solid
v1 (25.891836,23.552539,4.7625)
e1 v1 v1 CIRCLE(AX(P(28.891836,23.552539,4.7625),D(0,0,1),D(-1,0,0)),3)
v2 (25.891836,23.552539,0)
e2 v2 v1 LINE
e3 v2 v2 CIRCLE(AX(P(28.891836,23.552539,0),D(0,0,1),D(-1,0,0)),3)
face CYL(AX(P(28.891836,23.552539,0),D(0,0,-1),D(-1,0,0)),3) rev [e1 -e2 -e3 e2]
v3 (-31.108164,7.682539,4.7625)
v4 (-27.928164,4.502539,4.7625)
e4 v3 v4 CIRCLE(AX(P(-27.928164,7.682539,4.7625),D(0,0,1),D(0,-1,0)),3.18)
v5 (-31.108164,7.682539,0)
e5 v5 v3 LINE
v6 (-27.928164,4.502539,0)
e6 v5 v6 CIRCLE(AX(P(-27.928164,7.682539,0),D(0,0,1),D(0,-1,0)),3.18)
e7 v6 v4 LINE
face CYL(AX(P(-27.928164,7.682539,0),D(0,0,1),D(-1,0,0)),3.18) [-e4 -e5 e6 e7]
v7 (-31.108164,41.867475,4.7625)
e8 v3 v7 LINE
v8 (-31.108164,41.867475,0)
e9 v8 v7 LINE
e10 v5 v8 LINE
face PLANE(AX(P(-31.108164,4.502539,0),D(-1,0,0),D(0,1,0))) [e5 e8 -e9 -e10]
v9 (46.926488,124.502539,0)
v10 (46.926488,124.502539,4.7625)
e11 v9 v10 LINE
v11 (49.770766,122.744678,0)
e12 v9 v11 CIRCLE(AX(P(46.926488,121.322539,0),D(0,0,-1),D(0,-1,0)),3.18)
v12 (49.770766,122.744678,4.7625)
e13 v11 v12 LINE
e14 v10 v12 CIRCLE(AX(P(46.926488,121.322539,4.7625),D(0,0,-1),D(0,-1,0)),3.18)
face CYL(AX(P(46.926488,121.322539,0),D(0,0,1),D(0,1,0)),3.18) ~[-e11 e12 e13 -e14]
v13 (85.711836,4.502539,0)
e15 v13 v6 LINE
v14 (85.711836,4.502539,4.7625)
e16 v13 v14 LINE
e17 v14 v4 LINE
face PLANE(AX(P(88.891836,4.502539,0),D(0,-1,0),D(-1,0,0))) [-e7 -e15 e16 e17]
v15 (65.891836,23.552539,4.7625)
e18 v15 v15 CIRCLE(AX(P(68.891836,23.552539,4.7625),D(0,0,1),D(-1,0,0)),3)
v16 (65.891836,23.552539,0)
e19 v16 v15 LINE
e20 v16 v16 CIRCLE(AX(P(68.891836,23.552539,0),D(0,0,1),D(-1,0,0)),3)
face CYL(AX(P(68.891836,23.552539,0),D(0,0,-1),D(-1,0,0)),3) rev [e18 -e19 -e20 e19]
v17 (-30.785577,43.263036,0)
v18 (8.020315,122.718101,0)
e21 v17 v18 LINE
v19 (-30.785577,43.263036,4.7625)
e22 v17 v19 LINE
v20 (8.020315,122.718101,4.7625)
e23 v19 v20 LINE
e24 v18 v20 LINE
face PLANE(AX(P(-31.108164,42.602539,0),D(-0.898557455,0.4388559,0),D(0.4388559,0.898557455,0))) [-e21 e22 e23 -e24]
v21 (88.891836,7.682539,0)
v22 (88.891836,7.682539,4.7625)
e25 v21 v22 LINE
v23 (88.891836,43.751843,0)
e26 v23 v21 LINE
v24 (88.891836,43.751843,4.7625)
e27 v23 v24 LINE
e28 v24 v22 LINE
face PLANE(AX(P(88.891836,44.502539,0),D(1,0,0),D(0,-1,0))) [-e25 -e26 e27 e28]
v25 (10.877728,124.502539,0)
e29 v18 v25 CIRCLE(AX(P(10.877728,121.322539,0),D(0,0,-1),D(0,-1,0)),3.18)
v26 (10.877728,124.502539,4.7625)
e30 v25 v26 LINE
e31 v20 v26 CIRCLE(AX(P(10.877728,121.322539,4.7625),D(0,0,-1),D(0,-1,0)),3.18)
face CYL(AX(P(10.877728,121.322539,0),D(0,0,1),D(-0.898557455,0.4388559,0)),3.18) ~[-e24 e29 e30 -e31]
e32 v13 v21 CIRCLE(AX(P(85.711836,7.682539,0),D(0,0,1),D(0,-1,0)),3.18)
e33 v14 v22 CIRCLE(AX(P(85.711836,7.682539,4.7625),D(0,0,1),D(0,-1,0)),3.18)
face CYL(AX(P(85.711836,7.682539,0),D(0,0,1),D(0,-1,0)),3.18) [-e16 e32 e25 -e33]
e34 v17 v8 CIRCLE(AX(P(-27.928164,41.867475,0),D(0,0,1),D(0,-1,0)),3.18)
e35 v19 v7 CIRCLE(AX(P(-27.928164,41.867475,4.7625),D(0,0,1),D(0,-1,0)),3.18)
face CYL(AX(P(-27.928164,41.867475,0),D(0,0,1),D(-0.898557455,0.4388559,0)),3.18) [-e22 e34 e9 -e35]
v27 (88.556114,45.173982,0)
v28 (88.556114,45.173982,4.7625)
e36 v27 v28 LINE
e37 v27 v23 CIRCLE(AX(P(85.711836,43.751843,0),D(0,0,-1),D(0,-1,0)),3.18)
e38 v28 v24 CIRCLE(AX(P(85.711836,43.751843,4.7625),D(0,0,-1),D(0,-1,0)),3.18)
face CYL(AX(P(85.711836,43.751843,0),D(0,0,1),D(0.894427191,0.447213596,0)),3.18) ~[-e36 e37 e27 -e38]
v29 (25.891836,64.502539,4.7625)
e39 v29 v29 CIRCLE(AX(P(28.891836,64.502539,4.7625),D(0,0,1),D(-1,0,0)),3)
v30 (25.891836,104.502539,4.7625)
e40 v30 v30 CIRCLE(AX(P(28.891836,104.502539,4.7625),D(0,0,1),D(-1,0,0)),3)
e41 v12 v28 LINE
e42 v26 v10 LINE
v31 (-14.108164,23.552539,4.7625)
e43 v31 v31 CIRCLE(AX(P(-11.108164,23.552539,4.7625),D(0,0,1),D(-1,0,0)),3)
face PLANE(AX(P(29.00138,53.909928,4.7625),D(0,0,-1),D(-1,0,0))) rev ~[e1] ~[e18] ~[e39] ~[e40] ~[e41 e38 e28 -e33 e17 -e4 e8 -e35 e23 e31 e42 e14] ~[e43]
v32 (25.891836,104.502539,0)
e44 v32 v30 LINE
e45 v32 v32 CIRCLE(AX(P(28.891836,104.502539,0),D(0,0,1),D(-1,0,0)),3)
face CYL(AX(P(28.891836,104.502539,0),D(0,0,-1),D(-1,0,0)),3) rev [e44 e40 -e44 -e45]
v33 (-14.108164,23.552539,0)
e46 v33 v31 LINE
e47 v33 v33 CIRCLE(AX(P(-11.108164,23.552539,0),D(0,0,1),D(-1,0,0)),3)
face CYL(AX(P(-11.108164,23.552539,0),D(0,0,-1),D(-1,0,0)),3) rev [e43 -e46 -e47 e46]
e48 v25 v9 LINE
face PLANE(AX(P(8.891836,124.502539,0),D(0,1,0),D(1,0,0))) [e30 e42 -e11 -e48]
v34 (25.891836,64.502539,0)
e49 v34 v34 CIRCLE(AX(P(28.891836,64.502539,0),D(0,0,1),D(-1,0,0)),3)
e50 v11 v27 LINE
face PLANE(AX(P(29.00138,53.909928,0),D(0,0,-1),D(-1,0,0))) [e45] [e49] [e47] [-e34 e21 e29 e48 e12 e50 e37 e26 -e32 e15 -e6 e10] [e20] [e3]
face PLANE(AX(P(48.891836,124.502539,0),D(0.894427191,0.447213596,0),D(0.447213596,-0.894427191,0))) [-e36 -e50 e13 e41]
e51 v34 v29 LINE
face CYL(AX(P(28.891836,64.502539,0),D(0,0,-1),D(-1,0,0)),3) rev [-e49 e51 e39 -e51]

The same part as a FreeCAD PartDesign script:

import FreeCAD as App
import Part
import Sketcher

V = App.Vector


def edges_at(feature, points):
    """Names of the edges that pass closest to the given points."""
    edges = feature.Shape.Edges
    near = lambda p: min(range(len(edges)), key=lambda i: edges[i].distToShape(Part.Vertex(*p))[0])
    return sorted({f"Edge{near(p) + 1}" for p in points})


def add_polygon(sketch, points):
    """Adds a closed chain of lines whose ends are joined by coincident constraints."""
    first, n = sketch.GeometryCount, len(points)
    for a, b in zip(points, points[1:] + points[:1]):
        sketch.addGeometry(Part.LineSegment(App.Vector(*a, 0), App.Vector(*b, 0)), False)
    for i in range(n):
        sketch.addConstraint(Sketcher.Constraint("Coincident", first + i, 2, first + (i + 1) % n, 1))

doc = App.newDocument("Part")
params = doc.addObject("Spreadsheet::Sheet", "Params")
for row, (alias, value) in enumerate([
    ("sketch1_diameter", "6 mm"),
    ("sketch1_width", "120 mm"),
    ("sketch1_width2", "40 mm"),
    ("sketch1_height", "38.1 mm"),
    ("pad1_length", "4.7625 mm"),
    ("fillet_radius", "3.18 mm"),
], start=1):
    params.set(f"A{row}", alias)
    params.set(f"B{row}", "=" + value)
    params.setAlias(f"B{row}", alias)

body = doc.addObject("PartDesign::Body", "Body")

sketch1 = doc.addObject("Sketcher::SketchObject", "Sketch")
body.addObject(sketch1)
sketch1.AttachmentSupport = (doc.XY_Plane, [""])
sketch1.MapMode = "FlatFace"
add_polygon(sketch1, [(8.9, 124.5), (-31.1, 42.6), (-31.1, 4.5), (88.9, 4.5), (88.9, 44.5), (48.9, 124.5)])
sketch1.addGeometry(Part.Circle(V(68.9, 23.6, 0), V(0, 0, 1), 3), False)
sketch1.addGeometry(Part.Circle(V(28.9, 23.6, 0), V(0, 0, 1), 3), False)
sketch1.addGeometry(Part.Circle(V(-11.1, 23.6, 0), V(0, 0, 1), 3), False)
sketch1.addGeometry(Part.Circle(V(28.9, 64.5, 0), V(0, 0, 1), 3), False)
sketch1.addGeometry(Part.Circle(V(28.9, 104.5, 0), V(0, 0, 1), 3), False)
sketch1.addConstraint([
    Sketcher.Constraint("Vertical", 1),
    Sketcher.Constraint("Horizontal", 2),
    Sketcher.Constraint("Vertical", 3),
    Sketcher.Constraint("Horizontal", 5),
    Sketcher.Constraint("Equal", 6, 7),
    Sketcher.Constraint("Equal", 7, 8),
    Sketcher.Constraint("Equal", 8, 9),
    Sketcher.Constraint("Equal", 9, 10),
    Sketcher.Constraint("Horizontal", 6, 3, 7, 3),
    Sketcher.Constraint("Horizontal", 7, 3, 8, 3),
    Sketcher.Constraint("Vertical", 7, 3, 9, 3),
    Sketcher.Constraint("Vertical", 9, 3, 10, 3),
    Sketcher.Constraint("Equal", 5, 3),
    Sketcher.Constraint("Diameter", 6, 6.0),
    Sketcher.Constraint("DistanceX", 2, 1, 2, 2, 120.0),
    Sketcher.Constraint("DistanceX", 5, 2, 5, 1, 40.0),
    Sketcher.Constraint("DistanceY", 1, 2, 1, 1, 38.1),
    Sketcher.Constraint("DistanceX", 7, 3, 6, 3, 40.0),
    Sketcher.Constraint("DistanceX", 8, 3, 7, 3, 40.0),
    Sketcher.Constraint("DistanceY", 9, 3, 10, 3, 40.0),
    Sketcher.Constraint("DistanceX", 0, 2, 8, 3, 20.0),
    Sketcher.Constraint("DistanceY", 1, 2, 9, 3, 60.0),
    Sketcher.Constraint("DistanceX", 10, 3, 4, 2, 20.0),
    Sketcher.Constraint("DistanceY", 10, 3, 4, 2, 20.0),
    Sketcher.Constraint("DistanceY", 7, 3, 9, 3, 40.95),
    Sketcher.Constraint("DistanceY", -1, 1, 6, 3, 23.552539),
    Sketcher.Constraint("DistanceX", -1, 1, 6, 3, 68.891836),
])
sketch1.setExpression("Constraints[19]", "Params.sketch1_diameter")
sketch1.setExpression("Constraints[20]", "Params.sketch1_width")
sketch1.setExpression("Constraints[21]", "Params.sketch1_width2")
sketch1.setExpression("Constraints[22]", "Params.sketch1_height")
pad1 = doc.addObject("PartDesign::Pad", "Pad")
body.addObject(pad1)
pad1.Profile = sketch1
pad1.setExpression("Length", "Params.pad1_length")
doc.recompute()

fillet = doc.addObject("PartDesign::Fillet", "Fillet")
body.addObject(fillet)
fillet.Base = (pad1, edges_at(pad1, [
    (-31.108, 42.603, 2.381),
    (8.892, 124.503, 2.381),
    (48.892, 124.503, 2.381),
    (88.892, 44.503, 2.381),
    (88.892, 4.503, 2.381),
    (-31.108, 4.503, 2.381),
]))
fillet.setExpression("Radius", "Params.fillet_radius")

doc.recompute()
